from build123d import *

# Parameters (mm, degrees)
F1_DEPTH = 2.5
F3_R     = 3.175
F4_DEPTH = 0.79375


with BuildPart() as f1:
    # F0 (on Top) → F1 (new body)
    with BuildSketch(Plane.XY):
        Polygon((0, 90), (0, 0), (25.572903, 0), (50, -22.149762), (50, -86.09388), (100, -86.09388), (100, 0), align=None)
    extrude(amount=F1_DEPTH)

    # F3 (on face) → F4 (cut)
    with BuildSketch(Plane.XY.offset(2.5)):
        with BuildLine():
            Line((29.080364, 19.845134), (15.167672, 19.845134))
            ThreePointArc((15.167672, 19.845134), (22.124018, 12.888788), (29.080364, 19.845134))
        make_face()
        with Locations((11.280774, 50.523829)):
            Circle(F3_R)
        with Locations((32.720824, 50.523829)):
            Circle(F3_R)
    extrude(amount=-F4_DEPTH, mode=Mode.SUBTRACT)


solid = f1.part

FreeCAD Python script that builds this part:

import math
import FreeCAD as App
import Part
import Sketcher

doc = App.newDocument("Part")
body = doc.addObject("PartDesign::Body", "Body")

sketch1 = body.newObject("Sketcher::SketchObject", "Sketch")
sketch1.AttachmentSupport = (doc.getObject("XY_Plane"), [""])
sketch1.MapMode = "FlatFace"
sketch1.addGeometry([
    Part.LineSegment(App.Vector(0, 90, 0), App.Vector(0, 0, 0)),
    Part.LineSegment(App.Vector(0, 0, 0), App.Vector(25.572903, 0, 0)),
    Part.LineSegment(App.Vector(25.572903, 0, 0), App.Vector(50, -22.149762, 0)),
    Part.LineSegment(App.Vector(50, -22.149762, 0), App.Vector(50, -86.09388, 0)),
    Part.LineSegment(App.Vector(50, -86.09388, 0), App.Vector(100, -86.09388, 0)),
    Part.LineSegment(App.Vector(100, -86.09388, 0), App.Vector(100, 0, 0)),
    Part.LineSegment(App.Vector(100, 0, 0), App.Vector(0, 90, 0)),
], False)
sketch1.addConstraint([
    Sketcher.Constraint("Coincident", 0, 2, 1, 1),
    Sketcher.Constraint("Coincident", 1, 2, 2, 1),
    Sketcher.Constraint("Coincident", 2, 2, 3, 1),
    Sketcher.Constraint("Coincident", 3, 2, 4, 1),
    Sketcher.Constraint("Coincident", 4, 2, 5, 1),
    Sketcher.Constraint("Coincident", 5, 2, 6, 1),
    Sketcher.Constraint("Coincident", 6, 2, 0, 1),
    Sketcher.Constraint("Vertical", 0),
    Sketcher.Constraint("Horizontal", 1),
    Sketcher.Constraint("Vertical", 3),
    Sketcher.Constraint("Horizontal", 4),
    Sketcher.Constraint("Vertical", 5),
    Sketcher.Constraint("Coincident", 0, 2, -1, 1),
    Sketcher.Constraint("PointOnObject", 5, 2, -1),
    Sketcher.Constraint("DistanceX", 4, 1, 4, 2, 50.0),
    Sketcher.Constraint("DistanceY", 0, 2, 0, 1, 90.0),
    Sketcher.Constraint("DistanceX", -1, 1, 2, 2, 50.0),
    Sketcher.Constraint("DistanceY", 3, 2, 3, 1, 63.944118),
    Sketcher.Constraint("DistanceY", 5, 1, 5, 2, 86.09388),
    Sketcher.Constraint("DistanceX", 1, 1, 1, 2, 25.572903),
])
pad1 = body.newObject("PartDesign::Pad", "Pad")
pad1.Profile = sketch1
pad1.Length = 2.5

sketch2 = body.newObject("Sketcher::SketchObject", "Sketch001")
sketch2.AttachmentSupport = (doc.getObject("XY_Plane"), [""])
sketch2.MapMode = "FlatFace"
sketch2.AttachmentOffset = App.Placement(App.Vector(0, 0, 2.5), App.Rotation())
sketch2.addGeometry([
    Part.LineSegment(App.Vector(29.080364, 19.845134, 0), App.Vector(15.167672, 19.845134, 0)),
    Part.ArcOfCircle(Part.Circle(App.Vector(22.124018, 19.845134, 0), App.Vector(0, 0, 1), 6.956346), math.radians(180), math.radians(360)),
    Part.Circle(App.Vector(11.280774, 50.523829, 0), App.Vector(0, 0, 1), 3.175),
    Part.Circle(App.Vector(32.720824, 50.523829, 0), App.Vector(0, 0, 1), 3.175),
], False)
sketch2.addConstraint([
    Sketcher.Constraint("Coincident", 0, 1, 1, 2),
    Sketcher.Constraint("Coincident", 1, 1, 0, 2),
    Sketcher.Constraint("Horizontal", 0),
    Sketcher.Constraint("Equal", 2, 3),
    Sketcher.Constraint("Horizontal", 2, 3, 3, 3),
    Sketcher.Constraint("Horizontal", 1, 3, 0, 1),
    Sketcher.Constraint("Diameter", 2, 6.35),
    Sketcher.Constraint("Radius", 1, 6.956346),
    Sketcher.Constraint("DistanceX", 2, 3, 1, 1, 3.886898),
    Sketcher.Constraint("DistanceY", -1, 1, 2, 3, 50.523829),
    Sketcher.Constraint("DistanceX", 2, 3, 3, 3, 21.44005),
    Sketcher.Constraint("DistanceX", -1, 1, 1, 3, 22.124018),
    Sketcher.Constraint("DistanceY", -1, 1, 1, 3, 19.845134),
])
pocket1 = body.newObject("PartDesign::Pocket", "Pocket")
pocket1.Profile = sketch2
pocket1.Length = 0.79375

doc.recompute()
